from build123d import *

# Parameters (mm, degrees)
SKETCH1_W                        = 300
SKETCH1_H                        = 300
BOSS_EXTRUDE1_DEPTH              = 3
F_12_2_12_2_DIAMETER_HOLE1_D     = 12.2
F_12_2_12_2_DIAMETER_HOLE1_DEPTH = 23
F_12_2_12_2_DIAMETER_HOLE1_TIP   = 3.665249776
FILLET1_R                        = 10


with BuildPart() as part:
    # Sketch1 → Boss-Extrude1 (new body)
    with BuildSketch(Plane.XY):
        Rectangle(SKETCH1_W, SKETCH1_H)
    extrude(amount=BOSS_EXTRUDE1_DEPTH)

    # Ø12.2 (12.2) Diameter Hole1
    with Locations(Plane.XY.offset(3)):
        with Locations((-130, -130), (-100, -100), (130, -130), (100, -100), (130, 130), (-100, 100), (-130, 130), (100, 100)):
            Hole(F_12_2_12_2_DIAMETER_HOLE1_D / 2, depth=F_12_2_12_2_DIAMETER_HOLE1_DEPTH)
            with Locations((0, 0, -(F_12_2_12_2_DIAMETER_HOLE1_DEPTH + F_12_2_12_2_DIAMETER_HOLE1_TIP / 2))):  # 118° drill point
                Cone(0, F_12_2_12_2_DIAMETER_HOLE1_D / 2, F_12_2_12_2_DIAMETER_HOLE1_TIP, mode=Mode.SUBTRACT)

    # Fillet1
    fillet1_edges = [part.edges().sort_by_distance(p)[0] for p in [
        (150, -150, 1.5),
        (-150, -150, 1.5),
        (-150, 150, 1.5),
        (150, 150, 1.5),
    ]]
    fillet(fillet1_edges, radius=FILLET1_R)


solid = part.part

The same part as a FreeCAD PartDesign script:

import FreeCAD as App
import Part
import Sketcher

V = App.Vector
Q = App.Units.Quantity


def edges_at(feature, points):
    """Names of the edges that pass closest to the given points."""
    edges = feature.Shape.Edges
    near = lambda p: min(range(len(edges)), key=lambda i: edges[i].distToShape(Part.Vertex(*p))[0])
    return sorted({f"Edge{near(p) + 1}" for p in points})


def add_polygon(sketch, points):
    """Adds a closed chain of lines whose ends are joined by coincident constraints."""
    first, n = sketch.GeometryCount, len(points)
    for a, b in zip(points, points[1:] + points[:1]):
        sketch.addGeometry(Part.LineSegment(App.Vector(*a, 0), App.Vector(*b, 0)), False)
    for i in range(n):
        sketch.addConstraint(Sketcher.Constraint("Coincident", first + i, 2, first + (i + 1) % n, 1))

doc = App.newDocument("Part")
body = doc.addObject("PartDesign::Body", "Body")

# Sketch on XY plane
sketch1 = doc.addObject("Sketcher::SketchObject", "Sketch")
body.addObject(sketch1)
sketch1.AttachmentSupport = (doc.XY_Plane, [""])
sketch1.MapMode = "FlatFace"
add_polygon(sketch1, [(-150, 150), (-150, -150), (150, -150), (150, 150)])  # lines 0-3
sketch1.addConstraint(Sketcher.Constraint("Vertical", 0))
sketch1.addConstraint(Sketcher.Constraint("Horizontal", 1))
sketch1.addConstraint(Sketcher.Constraint("Vertical", 2))
sketch1.addConstraint(Sketcher.Constraint("Horizontal", 3))
sketch1.addConstraint(Sketcher.Constraint("Symmetric", 0, 2, 2, 2, -1, 1))
sketch1.addConstraint(Sketcher.Constraint("Equal", 3, 0))
sketch1.addConstraint(Sketcher.Constraint("DistanceX", 1, 1, 1, 2, Q("300 mm")))
pad1 = doc.addObject("PartDesign::Pad", "Pad")
body.addObject(pad1)
pad1.Profile = sketch1
pad1.Length = 3

# Sketch on XY plane
sketch2 = doc.addObject("Sketcher::SketchObject", "Sketch001")
body.addObject(sketch2)
sketch2.AttachmentSupport = (doc.XY_Plane, [""])
sketch2.MapMode = "FlatFace"
sketch2.AttachmentOffset = App.Placement(V(0, 0, 3), App.Rotation())
sketch2.addGeometry(Part.Circle(V(-130, -130, 0), V(0, 0, 1), 6), False)
sketch2.addGeometry(Part.Circle(V(-100, -100, 0), V(0, 0, 1), 6), False)
sketch2.addGeometry(Part.Circle(V(130, -130, 0), V(0, 0, 1), 6), False)
sketch2.addGeometry(Part.Circle(V(100, -100, 0), V(0, 0, 1), 6), False)
sketch2.addGeometry(Part.Circle(V(130, 130, 0), V(0, 0, 1), 6), False)
sketch2.addGeometry(Part.Circle(V(-100, 100, 0), V(0, 0, 1), 6), False)
sketch2.addGeometry(Part.Circle(V(-130, 130, 0), V(0, 0, 1), 6), False)
sketch2.addGeometry(Part.Circle(V(100, 100, 0), V(0, 0, 1), 6), False)
sketch2.addConstraint(Sketcher.Constraint("Equal", 0, 1))
sketch2.addConstraint(Sketcher.Constraint("Equal", 1, 2))
sketch2.addConstraint(Sketcher.Constraint("Equal", 2, 3))
sketch2.addConstraint(Sketcher.Constraint("Equal", 3, 4))
sketch2.addConstraint(Sketcher.Constraint("Equal", 4, 5))
sketch2.addConstraint(Sketcher.Constraint("Equal", 5, 6))
sketch2.addConstraint(Sketcher.Constraint("Equal", 6, 7))
sketch2.addConstraint(Sketcher.Constraint("Symmetric", 0, 3, 4, 3, -1, 1))
sketch2.addConstraint(Sketcher.Constraint("Symmetric", 3, 3, 5, 3, -1, 1))
sketch2.addConstraint(Sketcher.Constraint("Symmetric", 2, 3, 6, 3, -1, 1))
sketch2.addConstraint(Sketcher.Constraint("Symmetric", 1, 3, 7, 3, -1, 1))
sketch2.addConstraint(Sketcher.Constraint("Symmetric", 0, 3, 2, 3, -2))
sketch2.addConstraint(Sketcher.Constraint("Symmetric", 1, 3, 3, 3, -2))
sketch2.addConstraint(Sketcher.Constraint("Diameter", 0, Q("12.2 mm")))
sketch2.addConstraint(Sketcher.Constraint("DistanceX", 0, 3, -1, 1, Q("130 mm")))
sketch2.addConstraint(Sketcher.Constraint("DistanceY", 0, 3, -1, 1, Q("130 mm")))
sketch2.addConstraint(Sketcher.Constraint("DistanceX", 1, 3, -1, 1, Q("100 mm")))
sketch2.addConstraint(Sketcher.Constraint("DistanceY", 1, 3, -1, 1, Q("100 mm")))
doc.recompute()
hole = doc.addObject("PartDesign::Hole", "Hole")
body.addObject(hole)
hole.Profile = sketch2
hole.ThreadType = "None"
hole.Diameter = 12.2
hole.DepthType = "Dimension"
hole.Depth = 23
hole.DrillPoint = "Angled"
hole.DrillPointAngle = 118
doc.recompute()

fillet = doc.addObject("PartDesign::Fillet", "Fillet")
body.addObject(fillet)
fillet.Base = (hole, edges_at(hole, [
    (150, -150, 1.5),
    (-150, -150, 1.5),
    (-150, 150, 1.5),
    (150, 150, 1.5),
]))
fillet.Radius = 10

doc.recompute()
